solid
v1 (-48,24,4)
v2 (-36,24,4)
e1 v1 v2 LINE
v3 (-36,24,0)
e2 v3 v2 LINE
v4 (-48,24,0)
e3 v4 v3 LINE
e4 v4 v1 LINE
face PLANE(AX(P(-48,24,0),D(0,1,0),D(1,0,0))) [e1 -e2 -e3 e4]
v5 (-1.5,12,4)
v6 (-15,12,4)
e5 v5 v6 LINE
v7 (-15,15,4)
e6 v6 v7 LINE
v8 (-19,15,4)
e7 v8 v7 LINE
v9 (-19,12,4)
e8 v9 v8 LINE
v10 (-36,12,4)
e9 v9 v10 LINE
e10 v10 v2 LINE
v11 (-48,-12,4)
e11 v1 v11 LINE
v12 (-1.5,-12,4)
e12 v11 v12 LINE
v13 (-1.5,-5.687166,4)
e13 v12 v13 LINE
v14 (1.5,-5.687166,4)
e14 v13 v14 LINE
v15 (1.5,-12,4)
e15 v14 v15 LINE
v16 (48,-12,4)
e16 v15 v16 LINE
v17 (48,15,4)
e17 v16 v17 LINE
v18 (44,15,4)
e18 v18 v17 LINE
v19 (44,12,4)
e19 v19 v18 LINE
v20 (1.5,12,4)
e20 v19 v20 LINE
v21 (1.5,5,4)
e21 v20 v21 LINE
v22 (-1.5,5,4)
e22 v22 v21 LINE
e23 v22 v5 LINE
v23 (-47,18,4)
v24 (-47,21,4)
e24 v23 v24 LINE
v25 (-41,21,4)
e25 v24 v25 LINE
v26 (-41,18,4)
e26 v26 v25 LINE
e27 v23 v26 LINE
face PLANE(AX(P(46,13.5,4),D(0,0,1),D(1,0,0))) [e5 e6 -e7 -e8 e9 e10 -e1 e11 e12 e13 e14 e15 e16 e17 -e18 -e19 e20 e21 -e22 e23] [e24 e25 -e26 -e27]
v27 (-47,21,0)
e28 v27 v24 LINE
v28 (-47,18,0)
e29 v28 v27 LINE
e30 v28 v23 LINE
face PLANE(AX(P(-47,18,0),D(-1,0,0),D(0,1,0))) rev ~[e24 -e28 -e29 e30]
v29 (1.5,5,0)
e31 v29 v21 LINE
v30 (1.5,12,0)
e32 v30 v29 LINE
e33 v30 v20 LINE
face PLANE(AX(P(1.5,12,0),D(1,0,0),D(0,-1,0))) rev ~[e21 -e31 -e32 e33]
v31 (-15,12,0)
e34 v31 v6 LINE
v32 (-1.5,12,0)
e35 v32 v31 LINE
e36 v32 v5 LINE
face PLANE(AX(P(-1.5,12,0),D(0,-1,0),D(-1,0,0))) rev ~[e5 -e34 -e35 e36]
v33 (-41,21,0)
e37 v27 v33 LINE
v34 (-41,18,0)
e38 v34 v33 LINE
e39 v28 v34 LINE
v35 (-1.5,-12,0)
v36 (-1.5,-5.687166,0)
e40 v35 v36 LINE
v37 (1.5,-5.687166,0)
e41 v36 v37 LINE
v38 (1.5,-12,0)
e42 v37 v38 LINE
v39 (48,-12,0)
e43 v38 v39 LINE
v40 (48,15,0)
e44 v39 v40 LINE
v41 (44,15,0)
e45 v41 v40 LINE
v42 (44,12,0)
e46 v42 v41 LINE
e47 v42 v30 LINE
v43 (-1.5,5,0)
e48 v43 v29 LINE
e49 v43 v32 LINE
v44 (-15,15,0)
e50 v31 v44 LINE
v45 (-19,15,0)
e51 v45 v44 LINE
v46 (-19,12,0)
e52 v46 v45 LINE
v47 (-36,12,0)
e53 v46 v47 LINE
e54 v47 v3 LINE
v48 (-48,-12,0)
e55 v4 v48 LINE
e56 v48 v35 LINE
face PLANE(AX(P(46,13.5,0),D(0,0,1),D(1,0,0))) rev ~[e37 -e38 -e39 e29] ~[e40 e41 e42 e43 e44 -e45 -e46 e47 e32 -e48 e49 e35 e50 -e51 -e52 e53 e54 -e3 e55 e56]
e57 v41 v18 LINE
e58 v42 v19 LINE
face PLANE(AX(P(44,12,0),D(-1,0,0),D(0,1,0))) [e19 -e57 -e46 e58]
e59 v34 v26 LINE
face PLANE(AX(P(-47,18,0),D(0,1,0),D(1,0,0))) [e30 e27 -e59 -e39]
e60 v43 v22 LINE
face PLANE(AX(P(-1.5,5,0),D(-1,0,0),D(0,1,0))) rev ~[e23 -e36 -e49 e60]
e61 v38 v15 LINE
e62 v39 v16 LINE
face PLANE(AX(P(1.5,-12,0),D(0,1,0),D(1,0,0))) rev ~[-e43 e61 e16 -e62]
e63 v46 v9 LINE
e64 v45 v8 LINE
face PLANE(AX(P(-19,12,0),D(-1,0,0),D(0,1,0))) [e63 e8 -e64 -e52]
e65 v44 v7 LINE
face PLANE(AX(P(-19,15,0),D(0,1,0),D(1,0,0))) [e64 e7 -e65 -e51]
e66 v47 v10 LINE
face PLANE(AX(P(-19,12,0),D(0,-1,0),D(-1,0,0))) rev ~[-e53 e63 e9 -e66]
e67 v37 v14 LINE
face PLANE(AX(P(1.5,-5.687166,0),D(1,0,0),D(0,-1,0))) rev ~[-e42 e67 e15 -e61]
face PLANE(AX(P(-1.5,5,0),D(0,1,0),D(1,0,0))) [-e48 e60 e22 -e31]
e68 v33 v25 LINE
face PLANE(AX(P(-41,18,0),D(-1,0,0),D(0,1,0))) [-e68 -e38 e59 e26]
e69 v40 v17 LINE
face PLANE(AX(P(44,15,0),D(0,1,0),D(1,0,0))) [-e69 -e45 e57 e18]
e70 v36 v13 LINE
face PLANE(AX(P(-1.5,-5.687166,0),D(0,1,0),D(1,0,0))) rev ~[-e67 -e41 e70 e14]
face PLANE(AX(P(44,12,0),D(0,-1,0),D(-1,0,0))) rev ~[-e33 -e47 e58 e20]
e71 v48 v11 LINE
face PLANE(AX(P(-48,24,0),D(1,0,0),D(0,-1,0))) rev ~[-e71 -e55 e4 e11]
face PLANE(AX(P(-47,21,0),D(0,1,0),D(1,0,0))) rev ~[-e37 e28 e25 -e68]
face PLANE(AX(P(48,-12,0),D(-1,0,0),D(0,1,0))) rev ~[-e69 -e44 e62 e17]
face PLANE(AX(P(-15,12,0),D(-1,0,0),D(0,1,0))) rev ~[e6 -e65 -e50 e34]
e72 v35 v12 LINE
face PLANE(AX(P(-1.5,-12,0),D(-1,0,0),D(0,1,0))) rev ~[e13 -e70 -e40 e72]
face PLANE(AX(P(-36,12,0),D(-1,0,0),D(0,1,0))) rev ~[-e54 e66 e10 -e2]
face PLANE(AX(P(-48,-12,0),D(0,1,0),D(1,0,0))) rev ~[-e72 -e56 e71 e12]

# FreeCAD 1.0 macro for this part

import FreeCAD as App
import Part
import Sketcher

V = App.Vector
Q = App.Units.Quantity

doc = App.newDocument("Part")
params = doc.addObject("Spreadsheet::Sheet", "Params")
for row, (alias, value) in enumerate([
    ("sketch1_width", "3 mm"),
    ("sketch1_width2", "4 mm"),
    ("sketch1_width3", "17 mm"),
    ("sketch1_width4", "12 mm"),
    ("sketch1_width5", "6 mm"),
    ("pad1_length", "4 mm"),
], start=1):
    params.set(f"A{row}", alias)
    params.set(f"B{row}", "=" + value)
    params.setAlias(f"B{row}", alias)

body = doc.addObject("PartDesign::Body", "Body")

# Sketch on XY plane
sketch1 = body.newObject("Sketcher::SketchObject", "Sketch")
sketch1.AttachmentSupport = (doc.getObject("XY_Plane"), [""])
sketch1.MapMode = "FlatFace"
sketch1.addGeometry([
    Part.LineSegment(V(44, 15, 0), V(44, 12, 0)),  # 0
    Part.LineSegment(V(44, 12, 0), V(1.5, 12, 0)),  # 1
    Part.LineSegment(V(1.5, 12, 0), V(1.5, 5, 0)),  # 2
    Part.LineSegment(V(1.5, 5, 0), V(-1.5, 5, 0)),  # 3
    Part.LineSegment(V(-1.5, 5, 0), V(-1.5, 12, 0)),  # 4
    Part.LineSegment(V(-1.5, 12, 0), V(-15, 12, 0)),  # 5
    Part.LineSegment(V(-15, 12, 0), V(-15, 15, 0)),  # 6
    Part.LineSegment(V(-15, 15, 0), V(-19, 15, 0)),  # 7
    Part.LineSegment(V(-19, 15, 0), V(-19, 12, 0)),  # 8
    Part.LineSegment(V(-19, 12, 0), V(-36, 12, 0)),  # 9
    Part.LineSegment(V(-36, 12, 0), V(-36, 24, 0)),  # 10
    Part.LineSegment(V(-36, 24, 0), V(-48, 24, 0)),  # 11
    Part.LineSegment(V(-48, 24, 0), V(-48, -12, 0)),  # 12
    Part.LineSegment(V(-48, -12, 0), V(-1.5, -12, 0)),  # 13
    Part.LineSegment(V(-1.5, -12, 0), V(-1.5, -5.7, 0)),  # 14
    Part.LineSegment(V(-1.5, -5.7, 0), V(1.5, -5.7, 0)),  # 15
    Part.LineSegment(V(1.5, -5.7, 0), V(1.5, -12, 0)),  # 16
    Part.LineSegment(V(1.5, -12, 0), V(48, -12, 0)),  # 17
    Part.LineSegment(V(48, -12, 0), V(48, 15, 0)),  # 18
    Part.LineSegment(V(48, 15, 0), V(44, 15, 0)),  # 19
    Part.LineSegment(V(-47, 18, 0), V(-47, 21, 0)),  # 20
    Part.LineSegment(V(-47, 21, 0), V(-41, 21, 0)),  # 21
    Part.LineSegment(V(-41, 21, 0), V(-41, 18, 0)),  # 22
    Part.LineSegment(V(-41, 18, 0), V(-47, 18, 0)),  # 23
], False)
sketch1.addConstraint([
    Sketcher.Constraint("Coincident", 0, 2, 1, 1),
    Sketcher.Constraint("Coincident", 1, 2, 2, 1),
    Sketcher.Constraint("Coincident", 2, 2, 3, 1),
    Sketcher.Constraint("Coincident", 3, 2, 4, 1),
    Sketcher.Constraint("Coincident", 4, 2, 5, 1),
    Sketcher.Constraint("Coincident", 5, 2, 6, 1),
    Sketcher.Constraint("Coincident", 6, 2, 7, 1),
    Sketcher.Constraint("Coincident", 7, 2, 8, 1),
    Sketcher.Constraint("Coincident", 8, 2, 9, 1),
    Sketcher.Constraint("Coincident", 9, 2, 10, 1),
    Sketcher.Constraint("Coincident", 10, 2, 11, 1),
    Sketcher.Constraint("Coincident", 11, 2, 12, 1),
    Sketcher.Constraint("Coincident", 12, 2, 13, 1),
    Sketcher.Constraint("Coincident", 13, 2, 14, 1),
    Sketcher.Constraint("Coincident", 14, 2, 15, 1),
    Sketcher.Constraint("Coincident", 15, 2, 16, 1),
    Sketcher.Constraint("Coincident", 16, 2, 17, 1),
    Sketcher.Constraint("Coincident", 17, 2, 18, 1),
    Sketcher.Constraint("Coincident", 18, 2, 19, 1),
    Sketcher.Constraint("Coincident", 19, 2, 0, 1),
    Sketcher.Constraint("Coincident", 20, 2, 21, 1),
    Sketcher.Constraint("Coincident", 21, 2, 22, 1),
    Sketcher.Constraint("Coincident", 22, 2, 23, 1),
    Sketcher.Constraint("Coincident", 23, 2, 20, 1),
    Sketcher.Constraint("Vertical", 0),
    Sketcher.Constraint("Horizontal", 1),
    Sketcher.Constraint("Vertical", 2),
    Sketcher.Constraint("Horizontal", 3),
    Sketcher.Constraint("Vertical", 4),
    Sketcher.Constraint("Horizontal", 5),
    Sketcher.Constraint("Vertical", 6),
    Sketcher.Constraint("Horizontal", 7),
    Sketcher.Constraint("Vertical", 8),
    Sketcher.Constraint("Horizontal", 9),
    Sketcher.Constraint("Vertical", 10),
    Sketcher.Constraint("Horizontal", 11),
    Sketcher.Constraint("Vertical", 12),
    Sketcher.Constraint("Horizontal", 13),
    Sketcher.Constraint("Vertical", 14),
    Sketcher.Constraint("Horizontal", 15),
    Sketcher.Constraint("Vertical", 16),
    Sketcher.Constraint("Horizontal", 17),
    Sketcher.Constraint("Vertical", 18),
    Sketcher.Constraint("Horizontal", 19),
    Sketcher.Constraint("Vertical", 20),
    Sketcher.Constraint("Horizontal", 21),
    Sketcher.Constraint("Vertical", 22),
    Sketcher.Constraint("Horizontal", 23),
    Sketcher.Constraint("Symmetric", 1, 2, 13, 2, -1, 1),
    Sketcher.Constraint("Symmetric", 4, 2, 16, 2, -1, 1),
    Sketcher.Constraint("Symmetric", 1, 2, 4, 2, -2),
    Sketcher.Constraint("Horizontal", 5, 2, 8, 2),
    Sketcher.Constraint("Horizontal", 7, 2, 18, 2),
    Sketcher.Constraint("Equal", 13, 17),
    Sketcher.Constraint("Equal", 7, 19),
    Sketcher.Constraint("Equal", 15, 0),
    Sketcher.Constraint("Equal", 11, 10),
    Sketcher.Constraint("Equal", 8, 20),
    Sketcher.Constraint("DistanceX", 3, 2, 3, 1, Q("3 mm")),
    Sketcher.Constraint("DistanceX", 7, 2, 7, 1, Q("4 mm")),
    Sketcher.Constraint("DistanceX", 9, 2, 9, 1, Q("17 mm")),
    Sketcher.Constraint("DistanceX", 11, 2, 11, 1, Q("12 mm")),
    Sketcher.Constraint("DistanceX", 21, 1, 21, 2, Q("6 mm")),
    Sketcher.Constraint("DistanceY", 2, 2, 2, 1, Q("7 mm")),
    Sketcher.Constraint("DistanceY", 12, 2, 12, 1, Q("36 mm")),
    Sketcher.Constraint("DistanceX", 1, 2, 1, 1, Q("42.5 mm")),
    Sketcher.Constraint("DistanceX", 20, 2, -1, 1, Q("47 mm")),
    Sketcher.Constraint("DistanceY", -1, 1, 20, 2, Q("21 mm")),
    Sketcher.Constraint("DistanceY", 14, 1, 14, 2, Q("6.312834 mm")),
])
sketch1.setExpression("Constraints[58]", "Params.sketch1_width")
sketch1.setExpression("Constraints[59]", "Params.sketch1_width2")
sketch1.setExpression("Constraints[60]", "Params.sketch1_width3")
sketch1.setExpression("Constraints[61]", "Params.sketch1_width4")
sketch1.setExpression("Constraints[62]", "Params.sketch1_width5")
pad1 = body.newObject("PartDesign::Pad", "Pad")
pad1.Profile = sketch1
pad1.setExpression("Length", "Params.pad1_length")

doc.recompute()
